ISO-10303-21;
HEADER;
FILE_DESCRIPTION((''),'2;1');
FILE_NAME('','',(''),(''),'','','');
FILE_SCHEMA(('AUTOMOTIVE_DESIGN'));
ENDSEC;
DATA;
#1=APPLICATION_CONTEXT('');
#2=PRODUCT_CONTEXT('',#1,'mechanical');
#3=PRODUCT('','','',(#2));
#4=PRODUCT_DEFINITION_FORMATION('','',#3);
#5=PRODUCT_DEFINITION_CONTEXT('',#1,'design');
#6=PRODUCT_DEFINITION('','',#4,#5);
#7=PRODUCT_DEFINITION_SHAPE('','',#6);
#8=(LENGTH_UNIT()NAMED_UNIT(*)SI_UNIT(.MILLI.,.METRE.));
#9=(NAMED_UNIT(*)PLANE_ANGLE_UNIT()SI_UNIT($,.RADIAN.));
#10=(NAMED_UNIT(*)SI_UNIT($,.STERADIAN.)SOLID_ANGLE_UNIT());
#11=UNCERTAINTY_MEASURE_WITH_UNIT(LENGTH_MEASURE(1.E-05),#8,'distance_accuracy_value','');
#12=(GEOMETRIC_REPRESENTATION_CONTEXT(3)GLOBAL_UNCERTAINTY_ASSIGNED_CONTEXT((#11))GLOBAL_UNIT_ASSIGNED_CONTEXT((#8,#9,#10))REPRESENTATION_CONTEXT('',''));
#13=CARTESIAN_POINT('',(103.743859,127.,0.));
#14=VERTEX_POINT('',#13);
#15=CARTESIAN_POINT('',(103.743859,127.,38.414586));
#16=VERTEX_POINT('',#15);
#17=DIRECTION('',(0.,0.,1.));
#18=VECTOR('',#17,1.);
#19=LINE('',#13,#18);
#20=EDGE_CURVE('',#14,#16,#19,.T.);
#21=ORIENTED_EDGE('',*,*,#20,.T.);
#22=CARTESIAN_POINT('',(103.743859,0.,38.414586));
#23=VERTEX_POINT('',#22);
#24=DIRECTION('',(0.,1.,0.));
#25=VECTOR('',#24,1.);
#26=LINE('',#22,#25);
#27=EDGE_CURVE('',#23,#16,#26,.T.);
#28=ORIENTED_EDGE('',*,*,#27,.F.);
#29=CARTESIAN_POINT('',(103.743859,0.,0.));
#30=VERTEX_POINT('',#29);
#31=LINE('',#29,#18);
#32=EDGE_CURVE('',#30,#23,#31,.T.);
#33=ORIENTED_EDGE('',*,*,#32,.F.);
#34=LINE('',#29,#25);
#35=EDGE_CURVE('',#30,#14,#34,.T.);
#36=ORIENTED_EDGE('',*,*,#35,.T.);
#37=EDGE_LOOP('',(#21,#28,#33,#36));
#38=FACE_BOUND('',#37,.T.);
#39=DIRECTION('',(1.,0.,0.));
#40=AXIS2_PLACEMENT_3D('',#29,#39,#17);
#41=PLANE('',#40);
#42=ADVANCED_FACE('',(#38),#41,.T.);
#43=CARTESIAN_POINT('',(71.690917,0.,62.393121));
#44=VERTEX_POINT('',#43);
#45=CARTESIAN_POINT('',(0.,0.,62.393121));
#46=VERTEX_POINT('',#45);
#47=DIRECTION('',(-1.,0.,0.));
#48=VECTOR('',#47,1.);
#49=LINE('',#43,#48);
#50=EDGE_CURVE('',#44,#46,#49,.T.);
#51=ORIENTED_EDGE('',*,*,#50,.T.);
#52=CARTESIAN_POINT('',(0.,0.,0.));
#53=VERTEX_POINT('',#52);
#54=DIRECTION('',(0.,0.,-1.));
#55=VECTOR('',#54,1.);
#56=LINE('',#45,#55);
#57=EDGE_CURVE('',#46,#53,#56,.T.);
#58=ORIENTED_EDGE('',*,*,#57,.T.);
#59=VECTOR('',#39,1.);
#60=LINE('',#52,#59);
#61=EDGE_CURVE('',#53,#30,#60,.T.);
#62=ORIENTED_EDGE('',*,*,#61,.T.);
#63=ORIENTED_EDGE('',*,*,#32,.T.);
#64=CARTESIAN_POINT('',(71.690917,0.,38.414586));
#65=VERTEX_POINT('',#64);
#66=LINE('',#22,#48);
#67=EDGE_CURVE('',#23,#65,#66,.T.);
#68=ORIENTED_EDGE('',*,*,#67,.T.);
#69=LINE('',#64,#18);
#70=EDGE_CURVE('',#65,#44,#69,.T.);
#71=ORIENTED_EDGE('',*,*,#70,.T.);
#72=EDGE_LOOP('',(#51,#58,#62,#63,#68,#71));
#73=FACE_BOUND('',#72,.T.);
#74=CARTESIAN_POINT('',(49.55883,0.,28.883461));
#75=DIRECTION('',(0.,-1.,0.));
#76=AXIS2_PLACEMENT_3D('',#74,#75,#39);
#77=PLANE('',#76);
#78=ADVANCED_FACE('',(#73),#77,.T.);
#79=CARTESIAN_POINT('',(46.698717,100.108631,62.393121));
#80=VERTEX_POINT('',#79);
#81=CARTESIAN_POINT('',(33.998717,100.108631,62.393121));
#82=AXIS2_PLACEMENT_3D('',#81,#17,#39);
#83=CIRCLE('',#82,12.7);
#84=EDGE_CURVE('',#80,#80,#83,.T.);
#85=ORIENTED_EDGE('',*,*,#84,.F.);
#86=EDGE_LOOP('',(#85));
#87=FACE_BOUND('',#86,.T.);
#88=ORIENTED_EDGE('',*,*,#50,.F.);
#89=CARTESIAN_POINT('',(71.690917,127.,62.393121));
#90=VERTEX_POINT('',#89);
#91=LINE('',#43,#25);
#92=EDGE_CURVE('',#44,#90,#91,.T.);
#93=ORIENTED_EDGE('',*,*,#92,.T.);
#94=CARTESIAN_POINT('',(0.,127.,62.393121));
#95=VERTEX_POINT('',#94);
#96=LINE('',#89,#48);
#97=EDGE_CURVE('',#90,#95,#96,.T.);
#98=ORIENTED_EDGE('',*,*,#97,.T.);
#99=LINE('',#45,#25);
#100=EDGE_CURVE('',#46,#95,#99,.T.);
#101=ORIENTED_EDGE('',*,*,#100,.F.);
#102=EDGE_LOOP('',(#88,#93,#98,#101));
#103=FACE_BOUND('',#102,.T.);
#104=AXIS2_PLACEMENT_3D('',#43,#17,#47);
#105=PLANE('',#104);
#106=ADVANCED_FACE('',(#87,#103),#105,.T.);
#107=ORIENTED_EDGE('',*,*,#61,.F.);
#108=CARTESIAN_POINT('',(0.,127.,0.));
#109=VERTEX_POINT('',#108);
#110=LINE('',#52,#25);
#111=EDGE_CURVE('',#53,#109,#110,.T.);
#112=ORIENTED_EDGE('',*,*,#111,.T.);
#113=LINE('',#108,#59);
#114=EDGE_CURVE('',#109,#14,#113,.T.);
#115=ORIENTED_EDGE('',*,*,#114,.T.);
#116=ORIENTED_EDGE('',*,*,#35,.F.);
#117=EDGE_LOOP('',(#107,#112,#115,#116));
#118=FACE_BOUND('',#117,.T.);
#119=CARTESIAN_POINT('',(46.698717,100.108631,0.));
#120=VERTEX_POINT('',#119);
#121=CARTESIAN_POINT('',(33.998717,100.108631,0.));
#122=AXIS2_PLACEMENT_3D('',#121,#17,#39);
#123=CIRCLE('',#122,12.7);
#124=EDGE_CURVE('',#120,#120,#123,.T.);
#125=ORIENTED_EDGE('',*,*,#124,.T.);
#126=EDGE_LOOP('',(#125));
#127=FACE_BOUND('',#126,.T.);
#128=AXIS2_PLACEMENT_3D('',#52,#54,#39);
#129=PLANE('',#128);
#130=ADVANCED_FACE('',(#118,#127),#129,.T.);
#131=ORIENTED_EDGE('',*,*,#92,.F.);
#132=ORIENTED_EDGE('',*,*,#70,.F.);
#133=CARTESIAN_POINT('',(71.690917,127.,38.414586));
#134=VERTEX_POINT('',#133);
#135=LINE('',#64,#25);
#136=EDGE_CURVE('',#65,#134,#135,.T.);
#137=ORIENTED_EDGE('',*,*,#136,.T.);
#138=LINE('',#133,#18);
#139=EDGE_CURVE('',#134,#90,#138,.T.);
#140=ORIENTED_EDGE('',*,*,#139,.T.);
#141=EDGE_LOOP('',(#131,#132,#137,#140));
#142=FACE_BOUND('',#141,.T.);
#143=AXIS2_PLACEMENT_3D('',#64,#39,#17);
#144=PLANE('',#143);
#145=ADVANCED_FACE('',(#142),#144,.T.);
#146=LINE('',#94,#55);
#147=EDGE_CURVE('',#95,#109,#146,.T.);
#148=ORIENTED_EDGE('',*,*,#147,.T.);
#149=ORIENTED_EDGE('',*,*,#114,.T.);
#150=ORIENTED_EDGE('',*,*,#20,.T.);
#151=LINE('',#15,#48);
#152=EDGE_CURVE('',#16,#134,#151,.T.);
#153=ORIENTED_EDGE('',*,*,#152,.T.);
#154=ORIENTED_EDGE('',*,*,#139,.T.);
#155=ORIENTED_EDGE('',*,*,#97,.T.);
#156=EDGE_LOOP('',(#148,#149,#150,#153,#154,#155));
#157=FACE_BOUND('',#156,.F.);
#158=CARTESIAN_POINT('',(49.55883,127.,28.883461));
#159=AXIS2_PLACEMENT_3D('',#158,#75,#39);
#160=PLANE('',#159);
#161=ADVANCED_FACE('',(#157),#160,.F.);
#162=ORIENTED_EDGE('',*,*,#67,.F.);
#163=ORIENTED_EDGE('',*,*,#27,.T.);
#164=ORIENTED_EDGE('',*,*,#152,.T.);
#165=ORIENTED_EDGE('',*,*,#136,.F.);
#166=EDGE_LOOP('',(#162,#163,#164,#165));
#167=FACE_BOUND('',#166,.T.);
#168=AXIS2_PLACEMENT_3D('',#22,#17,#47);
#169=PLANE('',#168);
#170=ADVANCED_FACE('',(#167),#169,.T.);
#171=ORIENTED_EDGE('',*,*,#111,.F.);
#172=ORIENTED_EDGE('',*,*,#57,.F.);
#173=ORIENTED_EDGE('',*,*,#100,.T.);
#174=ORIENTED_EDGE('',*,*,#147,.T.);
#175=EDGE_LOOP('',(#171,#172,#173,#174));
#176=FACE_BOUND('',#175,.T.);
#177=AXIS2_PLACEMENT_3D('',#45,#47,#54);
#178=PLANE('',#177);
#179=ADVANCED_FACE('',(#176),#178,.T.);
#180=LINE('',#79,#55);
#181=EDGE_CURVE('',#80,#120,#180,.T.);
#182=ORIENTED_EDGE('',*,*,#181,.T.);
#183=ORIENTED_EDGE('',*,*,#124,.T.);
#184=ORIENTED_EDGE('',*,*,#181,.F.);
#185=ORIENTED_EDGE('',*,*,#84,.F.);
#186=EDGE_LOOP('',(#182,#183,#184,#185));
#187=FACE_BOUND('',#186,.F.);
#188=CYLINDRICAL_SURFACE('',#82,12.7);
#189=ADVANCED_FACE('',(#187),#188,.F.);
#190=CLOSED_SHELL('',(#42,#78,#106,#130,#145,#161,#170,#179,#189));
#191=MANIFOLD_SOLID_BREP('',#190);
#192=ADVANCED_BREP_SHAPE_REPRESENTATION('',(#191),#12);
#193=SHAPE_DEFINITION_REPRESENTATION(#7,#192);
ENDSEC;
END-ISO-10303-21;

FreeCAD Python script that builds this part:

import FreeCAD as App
import Part
import Sketcher
Q = App.Units.Quantity

doc = App.newDocument("Part")
body = doc.addObject("PartDesign::Body", "Body")

sketch1 = body.newObject("Sketcher::SketchObject", "Sketch")
sketch1.AttachmentSupport = (doc.getObject("XZ_Plane"), [""])
sketch1.MapMode = "FlatFace"
sketch1.addGeometry([
    Part.LineSegment(App.Vector(0, 62, 0), App.Vector(0, 0, 0)),
    Part.LineSegment(App.Vector(0, 0, 0), App.Vector(104, 0, 0)),
    Part.LineSegment(App.Vector(104, 0, 0), App.Vector(104, 38, 0)),
    Part.LineSegment(App.Vector(104, 38, 0), App.Vector(72, 38, 0)),
    Part.LineSegment(App.Vector(72, 38, 0), App.Vector(72, 62, 0)),
    Part.LineSegment(App.Vector(72, 62, 0), App.Vector(0, 62, 0)),
], False)
sketch1.addConstraint([
    Sketcher.Constraint("Coincident", 0, 2, 1, 1),
    Sketcher.Constraint("Coincident", 1, 2, 2, 1),
    Sketcher.Constraint("Coincident", 2, 2, 3, 1),
    Sketcher.Constraint("Coincident", 3, 2, 4, 1),
    Sketcher.Constraint("Coincident", 4, 2, 5, 1),
    Sketcher.Constraint("Coincident", 5, 2, 0, 1),
    Sketcher.Constraint("Vertical", 0),
    Sketcher.Constraint("Horizontal", 1),
    Sketcher.Constraint("Vertical", 2),
    Sketcher.Constraint("Horizontal", 3),
    Sketcher.Constraint("Vertical", 4),
    Sketcher.Constraint("Horizontal", 5),
    Sketcher.Constraint("Coincident", 0, 2, -1, 1),
    Sketcher.Constraint("DistanceX", 1, 1, 1, 2, 103.743859),
    Sketcher.Constraint("DistanceY", 0, 2, 0, 1, 62.393121),
    Sketcher.Constraint("DistanceX", 3, 2, 3, 1, 32.052942),
    Sketcher.Constraint("DistanceY", 2, 1, 2, 2, 38.414586),
])
pad1 = body.newObject("PartDesign::Pad", "Pad")
pad1.Profile = sketch1
pad1.Length = Q("5 in")
pad1.Reversed = True

sketch2 = body.newObject("Sketcher::SketchObject", "Sketch001")
sketch2.AttachmentSupport = (doc.getObject("XY_Plane"), [""])
sketch2.MapMode = "FlatFace"
sketch2.AttachmentOffset = App.Placement(App.Vector(0, 0, 62.393121), App.Rotation())
sketch2.addGeometry(Part.Circle(App.Vector(34, 100, 0), App.Vector(0, 0, 1), 13), False)
sketch2.addConstraint([
    Sketcher.Constraint("Diameter", 0, Q("1 in")),
    Sketcher.Constraint("DistanceY", -1, 1, 0, 3, 100.108631),
    Sketcher.Constraint("DistanceX", -1, 1, 0, 3, 33.998717),
])
pocket1 = body.newObject("PartDesign::Pocket", "Pocket")
pocket1.Profile = sketch2
pocket1.Type = "ThroughAll"

doc.recompute()
